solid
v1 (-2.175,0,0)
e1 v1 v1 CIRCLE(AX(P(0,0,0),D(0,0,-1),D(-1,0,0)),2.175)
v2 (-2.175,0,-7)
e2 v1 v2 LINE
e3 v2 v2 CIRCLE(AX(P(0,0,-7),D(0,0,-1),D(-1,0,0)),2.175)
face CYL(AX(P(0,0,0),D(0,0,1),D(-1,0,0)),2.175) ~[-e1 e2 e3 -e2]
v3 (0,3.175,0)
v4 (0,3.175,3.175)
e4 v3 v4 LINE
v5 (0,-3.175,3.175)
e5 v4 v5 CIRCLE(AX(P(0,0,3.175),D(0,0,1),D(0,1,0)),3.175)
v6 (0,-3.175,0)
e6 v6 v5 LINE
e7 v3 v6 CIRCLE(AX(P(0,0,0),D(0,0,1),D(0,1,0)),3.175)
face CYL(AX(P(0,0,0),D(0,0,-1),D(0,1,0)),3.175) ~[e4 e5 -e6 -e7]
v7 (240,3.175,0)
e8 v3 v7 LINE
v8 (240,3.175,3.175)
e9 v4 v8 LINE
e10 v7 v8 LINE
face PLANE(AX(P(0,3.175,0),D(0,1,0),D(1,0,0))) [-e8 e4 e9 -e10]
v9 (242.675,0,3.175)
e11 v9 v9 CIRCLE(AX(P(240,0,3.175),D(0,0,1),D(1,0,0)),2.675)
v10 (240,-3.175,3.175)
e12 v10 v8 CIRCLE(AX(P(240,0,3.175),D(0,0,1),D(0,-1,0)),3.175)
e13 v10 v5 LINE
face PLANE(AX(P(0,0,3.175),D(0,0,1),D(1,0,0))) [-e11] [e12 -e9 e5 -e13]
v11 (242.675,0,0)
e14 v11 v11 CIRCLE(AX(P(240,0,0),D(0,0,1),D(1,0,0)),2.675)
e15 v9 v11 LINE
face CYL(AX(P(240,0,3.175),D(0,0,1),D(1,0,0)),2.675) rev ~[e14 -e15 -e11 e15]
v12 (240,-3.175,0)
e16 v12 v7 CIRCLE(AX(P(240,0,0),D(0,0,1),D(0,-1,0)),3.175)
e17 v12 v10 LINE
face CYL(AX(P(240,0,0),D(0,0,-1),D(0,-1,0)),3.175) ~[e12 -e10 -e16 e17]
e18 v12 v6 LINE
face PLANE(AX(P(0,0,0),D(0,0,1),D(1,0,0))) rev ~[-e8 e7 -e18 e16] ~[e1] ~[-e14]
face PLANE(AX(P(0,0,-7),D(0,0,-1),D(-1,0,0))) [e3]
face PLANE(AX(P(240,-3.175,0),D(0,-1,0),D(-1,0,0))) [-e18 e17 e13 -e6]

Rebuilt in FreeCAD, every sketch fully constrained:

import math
import FreeCAD as App
import Part
import Sketcher

V = App.Vector
Q = App.Units.Quantity

doc = App.newDocument("Part")
body = doc.addObject("PartDesign::Body", "Body")

sketch1 = doc.addObject("Sketcher::SketchObject", "Sketch")
body.addObject(sketch1)
sketch1.AttachmentSupport = (doc.XY_Plane, [""])
sketch1.MapMode = "FlatFace"
sketch1.addGeometry(Part.LineSegment(V(240, 3.2, 0), V(0, 3.2, 0)), False)
sketch1.addGeometry(Part.ArcOfCircle(Part.Circle(V(0, 0, 0), V(0, 0, 1), 3.2), math.radians(90), math.radians(270)), False)
sketch1.addGeometry(Part.LineSegment(V(0, -3.2, 0), V(240, -3.2, 0)), False)
sketch1.addGeometry(Part.ArcOfCircle(Part.Circle(V(240, 0, 0), V(0, 0, 1), 3.2), math.radians(-90), math.radians(90)), False)
sketch1.addConstraint(Sketcher.Constraint("Tangent", 0, 2, 1, 1))
sketch1.addConstraint(Sketcher.Constraint("Tangent", 1, 2, 2, 1))
sketch1.addConstraint(Sketcher.Constraint("Tangent", 2, 2, 3, 1))
sketch1.addConstraint(Sketcher.Constraint("Tangent", 3, 2, 0, 1))
sketch1.addConstraint(Sketcher.Constraint("Horizontal", 0))
sketch1.addConstraint(Sketcher.Constraint("Horizontal", 2))
sketch1.addConstraint(Sketcher.Constraint("Coincident", 1, 3, -1, 1))
sketch1.addConstraint(Sketcher.Constraint("Radius", 1, Q("3.175 mm")))
sketch1.addConstraint(Sketcher.Constraint("DistanceX", 0, 2, 0, 1, Q("240 mm")))
pad1 = doc.addObject("PartDesign::Pad", "Pad")
body.addObject(pad1)
pad1.Profile = sketch1
pad1.Length = 3.175

sketch2 = doc.addObject("Sketcher::SketchObject", "Sketch001")
body.addObject(sketch2)
sketch2.AttachmentSupport = (doc.XY_Plane, [""])
sketch2.MapMode = "FlatFace"
sketch2.addGeometry(Part.Circle(V(0, 0, 0), V(0, 0, 1), 2.2), False)
sketch2.addConstraint(Sketcher.Constraint("Coincident", 0, 3, -1, 1))
sketch2.addConstraint(Sketcher.Constraint("Diameter", 0, Q("4.35 mm")))
pad2 = doc.addObject("PartDesign::Pad", "Pad001")
body.addObject(pad2)
pad2.Profile = sketch2
pad2.Length = 7
pad2.Reversed = True

sketch3 = doc.addObject("Sketcher::SketchObject", "Sketch002")
body.addObject(sketch3)
sketch3.AttachmentSupport = (doc.XY_Plane, [""])
sketch3.MapMode = "FlatFace"
sketch3.AttachmentOffset = App.Placement(V(0, 0, 3.175), App.Rotation())
sketch3.addGeometry(Part.Circle(V(240, 0, 0), V(0, 0, 1), 2.7), False)
sketch3.addConstraint(Sketcher.Constraint("PointOnObject", 0, 3, -1))
sketch3.addConstraint(Sketcher.Constraint("Diameter", 0, Q("5.35 mm")))
sketch3.addConstraint(Sketcher.Constraint("DistanceX", -1, 1, 0, 3, Q("240 mm")))
pocket1 = doc.addObject("PartDesign::Pocket", "Pocket")
body.addObject(pocket1)
pocket1.Profile = sketch3
pocket1.Length = 5

doc.recompute()
